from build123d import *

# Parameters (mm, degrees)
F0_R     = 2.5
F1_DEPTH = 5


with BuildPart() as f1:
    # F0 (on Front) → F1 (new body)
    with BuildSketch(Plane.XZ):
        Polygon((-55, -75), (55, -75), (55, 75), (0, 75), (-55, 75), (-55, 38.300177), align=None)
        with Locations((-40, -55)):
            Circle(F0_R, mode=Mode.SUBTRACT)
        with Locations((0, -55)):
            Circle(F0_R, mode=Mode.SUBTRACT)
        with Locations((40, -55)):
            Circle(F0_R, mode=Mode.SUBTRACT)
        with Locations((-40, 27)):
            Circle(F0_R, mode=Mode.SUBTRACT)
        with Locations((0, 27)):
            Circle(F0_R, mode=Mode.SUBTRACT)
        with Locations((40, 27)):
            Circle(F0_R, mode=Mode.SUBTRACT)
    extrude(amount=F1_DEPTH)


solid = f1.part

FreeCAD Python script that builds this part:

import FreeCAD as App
import Part
import Sketcher

V = App.Vector

doc = App.newDocument("Part")
params = doc.addObject("Spreadsheet::Sheet", "Params")
for row, (alias, value) in enumerate([
    ("sketch1_diameter", "5 mm"),
    ("sketch1_width", "110 mm"),
    ("sketch1_height", "150 mm"),
    ("pad1_length", "5 mm"),
], start=1):
    params.set(f"A{row}", alias)
    params.set(f"B{row}", "=" + value)
    params.setAlias(f"B{row}", alias)

body = doc.addObject("PartDesign::Body", "Body")

# Sketch on XZ plane
sketch1 = doc.addObject("Sketcher::SketchObject", "Sketch")
body.addObject(sketch1)
sketch1.AttachmentSupport = (doc.XZ_Plane, [""])
sketch1.MapMode = "FlatFace"
sketch1.addGeometry([
    Part.LineSegment(V(-55, -75, 0), V(55, -75, 0)),  # 0
    Part.LineSegment(V(55, -75, 0), V(55, 75, 0)),  # 1
    Part.LineSegment(V(55, 75, 0), V(-55, 75, 0)),  # 2
    Part.LineSegment(V(-55, 75, 0), V(-55, -75, 0)),  # 3
    Part.Circle(V(-40, -55, 0), V(0, 0, 1), 2.5),  # 4
    Part.Circle(V(0, -55, 0), V(0, 0, 1), 2.5),  # 5
    Part.Circle(V(40, -55, 0), V(0, 0, 1), 2.5),  # 6
    Part.Circle(V(-40, 27, 0), V(0, 0, 1), 2.5),  # 7
    Part.Circle(V(0, 27, 0), V(0, 0, 1), 2.5),  # 8
    Part.Circle(V(40, 27, 0), V(0, 0, 1), 2.5),  # 9
], False)
sketch1.addConstraint([
    Sketcher.Constraint("Coincident", 0, 2, 1, 1),
    Sketcher.Constraint("Coincident", 1, 2, 2, 1),
    Sketcher.Constraint("Coincident", 2, 2, 3, 1),
    Sketcher.Constraint("Coincident", 3, 2, 0, 1),
    Sketcher.Constraint("Horizontal", 0),
    Sketcher.Constraint("Vertical", 1),
    Sketcher.Constraint("Horizontal", 2),
    Sketcher.Constraint("Vertical", 3),
    Sketcher.Constraint("Equal", 4, 5),
    Sketcher.Constraint("Equal", 5, 6),
    Sketcher.Constraint("Equal", 6, 7),
    Sketcher.Constraint("Equal", 7, 8),
    Sketcher.Constraint("Equal", 8, 9),
    Sketcher.Constraint("Symmetric", 0, 2, 2, 2, -1, 1),
    Sketcher.Constraint("Symmetric", 4, 3, 6, 3, -2),
    Sketcher.Constraint("Symmetric", 7, 3, 9, 3, -2),
    Sketcher.Constraint("PointOnObject", 5, 3, -2),
    Sketcher.Constraint("PointOnObject", 8, 3, -2),
    Sketcher.Constraint("Horizontal", 4, 3, 5, 3),
    Sketcher.Constraint("Horizontal", 7, 3, 8, 3),
    Sketcher.Constraint("Vertical", 4, 3, 7, 3),
    Sketcher.Constraint("Diameter", 4, 5.0),
    Sketcher.Constraint("DistanceX", 0, 1, 0, 2, 110.0),
    Sketcher.Constraint("DistanceY", 1, 1, 1, 2, 150.0),
    Sketcher.Constraint("DistanceX", 4, 3, -1, 1, 40.0),
    Sketcher.Constraint("DistanceY", 4, 3, -1, 1, 55.0),
    Sketcher.Constraint("DistanceY", -1, 1, 7, 3, 27.0),
])
sketch1.setExpression("Constraints[21]", "Params.sketch1_diameter")
sketch1.setExpression("Constraints[22]", "Params.sketch1_width")
sketch1.setExpression("Constraints[23]", "Params.sketch1_height")
pad1 = doc.addObject("PartDesign::Pad", "Pad")
body.addObject(pad1)
pad1.Profile = sketch1
pad1.setExpression("Length", "Params.pad1_length")

doc.recompute()
